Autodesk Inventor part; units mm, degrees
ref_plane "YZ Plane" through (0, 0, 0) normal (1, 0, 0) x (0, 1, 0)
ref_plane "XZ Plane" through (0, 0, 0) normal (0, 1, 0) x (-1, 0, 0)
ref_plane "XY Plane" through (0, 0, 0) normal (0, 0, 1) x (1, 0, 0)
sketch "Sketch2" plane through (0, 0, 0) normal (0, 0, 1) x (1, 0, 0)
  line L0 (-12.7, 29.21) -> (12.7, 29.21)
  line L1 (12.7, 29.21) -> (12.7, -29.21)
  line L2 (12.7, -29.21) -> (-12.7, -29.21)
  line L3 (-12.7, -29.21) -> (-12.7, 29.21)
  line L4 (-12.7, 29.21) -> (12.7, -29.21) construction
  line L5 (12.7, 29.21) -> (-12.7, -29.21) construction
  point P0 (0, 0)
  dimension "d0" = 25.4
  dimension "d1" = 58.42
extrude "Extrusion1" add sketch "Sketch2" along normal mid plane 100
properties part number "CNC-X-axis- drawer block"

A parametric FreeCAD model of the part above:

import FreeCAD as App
import Part
import Sketcher
Q = App.Units.Quantity

doc = App.newDocument("Part")
body = doc.addObject("PartDesign::Body", "Body")

sketch1 = doc.addObject("Sketcher::SketchObject", "Sketch")
body.addObject(sketch1)
sketch1.AttachmentSupport = (doc.XY_Plane, [""])
sketch1.MapMode = "FlatFace"
sketch1.addGeometry([
    Part.LineSegment(App.Vector(13, 29, 0), App.Vector(-13, 29, 0)),
    Part.LineSegment(App.Vector(-13, 29, 0), App.Vector(-13, -29, 0)),
    Part.LineSegment(App.Vector(-13, -29, 0), App.Vector(13, -29, 0)),
    Part.LineSegment(App.Vector(13, -29, 0), App.Vector(13, 29, 0)),
], False)
sketch1.addConstraint([
    Sketcher.Constraint("Coincident", 0, 2, 1, 1),
    Sketcher.Constraint("Coincident", 1, 2, 2, 1),
    Sketcher.Constraint("Coincident", 2, 2, 3, 1),
    Sketcher.Constraint("Coincident", 3, 2, 0, 1),
    Sketcher.Constraint("Horizontal", 0),
    Sketcher.Constraint("Vertical", 1),
    Sketcher.Constraint("Horizontal", 2),
    Sketcher.Constraint("Vertical", 3),
    Sketcher.Constraint("Symmetric", 0, 2, 2, 2, -1, 1),
    Sketcher.Constraint("DistanceX", 0, 2, 0, 1, Q("1 in")),
    Sketcher.Constraint("DistanceY", 1, 2, 1, 1, Q("2.3 in")),
])
pad1 = doc.addObject("PartDesign::Pad", "Pad")
body.addObject(pad1)
pad1.Profile = sketch1
pad1.Length = Q("3.9370079 in")
pad1.Midplane = True

doc.recompute()
